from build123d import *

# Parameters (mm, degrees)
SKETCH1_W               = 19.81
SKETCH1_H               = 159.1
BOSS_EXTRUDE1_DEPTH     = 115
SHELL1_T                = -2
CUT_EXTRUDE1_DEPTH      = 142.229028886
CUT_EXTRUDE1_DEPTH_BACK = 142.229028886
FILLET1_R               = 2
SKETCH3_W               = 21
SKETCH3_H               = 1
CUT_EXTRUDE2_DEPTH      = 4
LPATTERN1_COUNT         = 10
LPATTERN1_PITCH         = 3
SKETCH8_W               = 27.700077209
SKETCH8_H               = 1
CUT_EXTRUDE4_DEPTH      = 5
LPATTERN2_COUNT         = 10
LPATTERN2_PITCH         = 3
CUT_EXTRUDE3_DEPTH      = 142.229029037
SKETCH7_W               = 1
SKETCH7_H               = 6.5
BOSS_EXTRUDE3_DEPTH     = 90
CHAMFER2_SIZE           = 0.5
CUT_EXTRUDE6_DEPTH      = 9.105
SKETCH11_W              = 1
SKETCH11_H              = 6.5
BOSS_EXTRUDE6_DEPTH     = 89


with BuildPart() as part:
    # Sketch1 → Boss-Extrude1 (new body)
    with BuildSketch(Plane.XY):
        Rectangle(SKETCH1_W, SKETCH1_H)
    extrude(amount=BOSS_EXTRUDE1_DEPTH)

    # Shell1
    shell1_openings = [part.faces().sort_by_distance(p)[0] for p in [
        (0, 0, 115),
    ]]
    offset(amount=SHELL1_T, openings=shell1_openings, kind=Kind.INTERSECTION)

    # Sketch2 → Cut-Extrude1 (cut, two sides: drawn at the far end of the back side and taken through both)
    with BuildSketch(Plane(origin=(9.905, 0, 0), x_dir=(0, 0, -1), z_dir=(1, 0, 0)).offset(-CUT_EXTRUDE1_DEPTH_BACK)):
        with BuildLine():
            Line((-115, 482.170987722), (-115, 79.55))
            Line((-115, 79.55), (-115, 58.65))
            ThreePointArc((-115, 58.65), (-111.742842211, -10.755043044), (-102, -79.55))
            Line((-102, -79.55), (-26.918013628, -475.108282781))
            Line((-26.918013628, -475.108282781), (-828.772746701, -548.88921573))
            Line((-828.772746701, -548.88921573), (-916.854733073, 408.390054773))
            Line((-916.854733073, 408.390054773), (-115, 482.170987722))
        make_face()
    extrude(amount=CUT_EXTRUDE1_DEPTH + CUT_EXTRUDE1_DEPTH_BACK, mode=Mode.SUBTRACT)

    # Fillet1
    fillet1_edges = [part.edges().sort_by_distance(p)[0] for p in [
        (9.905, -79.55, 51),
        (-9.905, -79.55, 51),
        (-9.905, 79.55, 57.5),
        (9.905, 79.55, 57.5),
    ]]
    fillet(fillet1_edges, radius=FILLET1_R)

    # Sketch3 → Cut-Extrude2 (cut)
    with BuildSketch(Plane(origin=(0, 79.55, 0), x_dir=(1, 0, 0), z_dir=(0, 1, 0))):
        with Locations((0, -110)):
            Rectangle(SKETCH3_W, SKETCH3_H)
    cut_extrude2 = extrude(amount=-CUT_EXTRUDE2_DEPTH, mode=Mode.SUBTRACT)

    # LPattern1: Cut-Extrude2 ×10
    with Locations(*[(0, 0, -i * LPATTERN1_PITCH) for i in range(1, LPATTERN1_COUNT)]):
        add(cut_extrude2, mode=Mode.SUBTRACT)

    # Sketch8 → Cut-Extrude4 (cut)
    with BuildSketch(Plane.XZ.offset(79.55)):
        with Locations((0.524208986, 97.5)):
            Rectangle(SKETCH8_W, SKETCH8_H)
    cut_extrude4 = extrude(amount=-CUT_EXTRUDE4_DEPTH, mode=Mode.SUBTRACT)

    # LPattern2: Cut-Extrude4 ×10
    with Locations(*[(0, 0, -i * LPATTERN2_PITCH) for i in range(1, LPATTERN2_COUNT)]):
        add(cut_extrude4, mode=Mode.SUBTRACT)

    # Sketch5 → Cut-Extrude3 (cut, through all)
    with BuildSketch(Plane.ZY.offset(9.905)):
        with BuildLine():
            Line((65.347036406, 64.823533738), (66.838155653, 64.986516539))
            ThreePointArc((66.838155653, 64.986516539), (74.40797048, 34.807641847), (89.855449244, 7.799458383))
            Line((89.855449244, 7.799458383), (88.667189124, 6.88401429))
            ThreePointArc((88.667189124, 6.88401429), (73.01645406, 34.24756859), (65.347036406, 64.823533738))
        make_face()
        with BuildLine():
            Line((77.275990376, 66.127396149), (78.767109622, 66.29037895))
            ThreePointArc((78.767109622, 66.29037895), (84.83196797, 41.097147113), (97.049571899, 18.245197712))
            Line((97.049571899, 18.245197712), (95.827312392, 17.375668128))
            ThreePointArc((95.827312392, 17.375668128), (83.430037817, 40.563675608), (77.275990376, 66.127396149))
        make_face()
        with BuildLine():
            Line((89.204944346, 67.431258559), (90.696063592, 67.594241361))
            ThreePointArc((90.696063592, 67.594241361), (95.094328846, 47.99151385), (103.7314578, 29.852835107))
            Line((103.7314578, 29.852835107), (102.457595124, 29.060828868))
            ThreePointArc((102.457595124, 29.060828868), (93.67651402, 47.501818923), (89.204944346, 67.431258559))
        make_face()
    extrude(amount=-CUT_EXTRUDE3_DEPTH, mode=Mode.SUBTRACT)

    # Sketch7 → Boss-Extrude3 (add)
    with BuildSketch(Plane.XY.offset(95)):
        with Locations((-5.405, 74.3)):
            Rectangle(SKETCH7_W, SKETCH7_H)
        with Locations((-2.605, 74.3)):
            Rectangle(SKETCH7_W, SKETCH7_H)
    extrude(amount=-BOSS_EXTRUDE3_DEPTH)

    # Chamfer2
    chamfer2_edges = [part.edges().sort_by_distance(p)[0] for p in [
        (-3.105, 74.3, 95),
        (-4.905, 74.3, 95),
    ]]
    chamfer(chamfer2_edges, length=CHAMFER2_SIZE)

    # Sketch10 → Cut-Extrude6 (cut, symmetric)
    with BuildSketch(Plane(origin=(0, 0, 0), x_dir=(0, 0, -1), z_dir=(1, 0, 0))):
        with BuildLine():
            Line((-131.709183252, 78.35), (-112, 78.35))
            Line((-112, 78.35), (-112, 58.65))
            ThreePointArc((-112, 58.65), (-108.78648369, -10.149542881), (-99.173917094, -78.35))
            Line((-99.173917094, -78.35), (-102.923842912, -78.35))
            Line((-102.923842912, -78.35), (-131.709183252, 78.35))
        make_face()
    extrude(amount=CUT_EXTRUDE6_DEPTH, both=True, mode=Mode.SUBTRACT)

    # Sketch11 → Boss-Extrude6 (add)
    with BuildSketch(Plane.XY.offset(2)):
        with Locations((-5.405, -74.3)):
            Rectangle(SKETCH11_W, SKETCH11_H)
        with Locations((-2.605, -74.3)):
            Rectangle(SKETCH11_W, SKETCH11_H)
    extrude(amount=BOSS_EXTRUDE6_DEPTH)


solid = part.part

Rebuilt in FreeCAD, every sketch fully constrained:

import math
import FreeCAD as App
import Part
import Sketcher
from FreeCAD import Vector


def edges_at(feature, points):
    """Names of the edges that pass closest to the given points."""
    edges = feature.Shape.Edges
    near = lambda p: min(range(len(edges)), key=lambda i: edges[i].distToShape(Part.Vertex(*p))[0])
    return sorted({f"Edge{near(p) + 1}" for p in points})


def faces_at(feature, points):
    """Names of the faces that lie closest to the given points."""
    faces = feature.Shape.Faces
    near = lambda p: min(range(len(faces)), key=lambda i: faces[i].distToShape(Part.Vertex(*p))[0])
    return sorted({f"Face{near(p) + 1}" for p in points})

doc = App.newDocument("Part")
body = doc.addObject("PartDesign::Body", "Body")

sketch1 = body.newObject("Sketcher::SketchObject", "Sketch")
sketch1.AttachmentSupport = (doc.getObject("XY_Plane"), [""])
sketch1.MapMode = "FlatFace"
sketch1.addGeometry([
    Part.LineSegment(Vector(-9.905, 79.55, 0), Vector(-9.905, -79.55, 0)),
    Part.LineSegment(Vector(-9.905, -79.55, 0), Vector(9.905, -79.55, 0)),
    Part.LineSegment(Vector(9.905, -79.55, 0), Vector(9.905, 79.55, 0)),
    Part.LineSegment(Vector(9.905, 79.55, 0), Vector(-9.905, 79.55, 0)),
], False)
sketch1.addConstraint([
    Sketcher.Constraint("Coincident", 0, 2, 1, 1),
    Sketcher.Constraint("Coincident", 1, 2, 2, 1),
    Sketcher.Constraint("Coincident", 2, 2, 3, 1),
    Sketcher.Constraint("Coincident", 3, 2, 0, 1),
    Sketcher.Constraint("Vertical", 0),
    Sketcher.Constraint("Horizontal", 1),
    Sketcher.Constraint("Vertical", 2),
    Sketcher.Constraint("Horizontal", 3),
    Sketcher.Constraint("Symmetric", 0, 2, 2, 2, -1, 1),
    Sketcher.Constraint("DistanceY", 0, 2, 0, 1, 159.1),
    Sketcher.Constraint("DistanceX", 1, 1, 1, 2, 19.81),
])
pad1 = body.newObject("PartDesign::Pad", "Pad")
pad1.Profile = sketch1
pad1.Length = 115
doc.recompute()

thickness = body.newObject("PartDesign::Thickness", "Thickness")
thickness.Base = (pad1, faces_at(pad1, [(0, 0, 115)]))
thickness.Value = 2
thickness.Reversed = True
thickness.Join = "Intersection"

sketch2 = body.newObject("Sketcher::SketchObject", "Sketch001")
sketch2.AttachmentSupport = (doc.getObject("YZ_Plane"), [""])
sketch2.MapMode = "FlatFace"
sketch2.AttachmentOffset = App.Placement(Vector(0, 0, 9.905), App.Rotation())
sketch2.addGeometry([
    Part.LineSegment(Vector(58.65, 115, 0), Vector(482.170988, 115, 0)),
    Part.LineSegment(Vector(482.170988, 115, 0), Vector(408.390055, 916.854733, 0)),
    Part.LineSegment(Vector(408.390055, 916.854733, 0), Vector(-548.889216, 828.772747, 0)),
    Part.LineSegment(Vector(-548.889216, 828.772747, 0), Vector(-475.108283, 26.918014, 0)),
    Part.LineSegment(Vector(-475.108283, 26.918014, 0), Vector(-79.55, 102, 0)),
    Part.ArcOfCircle(Part.Circle(Vector(58.65, -626.086154, 0), Vector(0, 0, 1), 741.086154), math.radians(90), math.radians(100.747609)),
], False)
sketch2.addConstraint([
    Sketcher.Constraint("Coincident", 0, 2, 1, 1),
    Sketcher.Constraint("Coincident", 1, 2, 2, 1),
    Sketcher.Constraint("Coincident", 2, 2, 3, 1),
    Sketcher.Constraint("Coincident", 3, 2, 4, 1),
    Sketcher.Constraint("Tangent", 4, 2, 5, 2),
    Sketcher.Constraint("Tangent", 5, 1, 0, 1),
    Sketcher.Constraint("Horizontal", 0),
    Sketcher.Constraint("Perpendicular", 1, 2),
    Sketcher.Constraint("Perpendicular", 2, 3),
    Sketcher.Constraint("Equal", 1, 3),
    Sketcher.Constraint("DistanceY", -1, 1, 0, 2, 115.0),
    Sketcher.Constraint("DistanceY", -1, 1, 4, 2, 102.0),
    Sketcher.Constraint("DistanceX", 4, 2, 5, 3, 138.2),
    Sketcher.Constraint("DistanceX", -1, 1, 5, 3, 58.65),
    Sketcher.Constraint("DistanceY", 5, 3, 2, 2, 1454.858901),
    Sketcher.Constraint("DistanceX", 0, 1, 0, 2, 423.520988),
    Sketcher.Constraint("DistanceX", 2, 2, 1, 2, 957.279271),
])
pocket1 = body.newObject("PartDesign::Pocket", "Pocket")
pocket1.Profile = sketch2
pocket1.Type = "ThroughAll"
pocket1.Midplane = True
doc.recompute()

fillet = body.newObject("PartDesign::Fillet", "Fillet")
fillet.Base = (pocket1, edges_at(pocket1, [
    (9.905, -79.55, 51),
    (-9.905, -79.55, 51),
    (-9.905, 79.55, 57.5),
    (9.905, 79.55, 57.5),
]))
fillet.Radius = 2

sketch3 = body.newObject("Sketcher::SketchObject", "Sketch002")
sketch3.AttachmentSupport = (doc.getObject("XZ_Plane"), [""])
sketch3.MapMode = "FlatFace"
sketch3.AttachmentOffset = App.Placement(Vector(0, 0, -79.55), App.Rotation())
sketch3.addGeometry([
    Part.LineSegment(Vector(-10.5, 109.5, 0), Vector(-10.5, 110.5, 0)),
    Part.LineSegment(Vector(-10.5, 110.5, 0), Vector(10.5, 110.5, 0)),
    Part.LineSegment(Vector(10.5, 110.5, 0), Vector(10.5, 109.5, 0)),
    Part.LineSegment(Vector(10.5, 109.5, 0), Vector(-10.5, 109.5, 0)),
], False)
sketch3.addConstraint([
    Sketcher.Constraint("Coincident", 0, 2, 1, 1),
    Sketcher.Constraint("Coincident", 1, 2, 2, 1),
    Sketcher.Constraint("Coincident", 2, 2, 3, 1),
    Sketcher.Constraint("Coincident", 3, 2, 0, 1),
    Sketcher.Constraint("Vertical", 0),
    Sketcher.Constraint("Horizontal", 1),
    Sketcher.Constraint("Vertical", 2),
    Sketcher.Constraint("Horizontal", 3),
    Sketcher.Constraint("DistanceX", 1, 1, 1, 2, 21.0),
    Sketcher.Constraint("DistanceY", 0, 1, 0, 2, 1.0),
    Sketcher.Constraint("DistanceX", 0, 2, -1, 1, 10.5),
    Sketcher.Constraint("DistanceY", -1, 1, 0, 2, 110.5),
])
pocket2 = body.newObject("PartDesign::Pocket", "Pocket001")
pocket2.Profile = sketch3
pocket2.Length = 4
pocket2.Reversed = True
doc.recompute()

linearpattern = body.newObject("PartDesign::LinearPattern", "LinearPattern")
linearpattern.Originals = [pocket2]
linearpattern.Direction = (doc.getObject("Z_Axis"), [""])
linearpattern.Mode = "offset"
linearpattern.Offset = 3
linearpattern.Occurrences = 10
linearpattern.Reversed = True
body.Tip = linearpattern

sketch4 = body.newObject("Sketcher::SketchObject", "Sketch003")
sketch4.AttachmentSupport = (doc.getObject("XZ_Plane"), [""])
sketch4.MapMode = "FlatFace"
sketch4.AttachmentOffset = App.Placement(Vector(0, 0, 79.55), App.Rotation())
sketch4.addGeometry([
    Part.LineSegment(Vector(-13.32583, 98, 0), Vector(-13.32583, 97, 0)),
    Part.LineSegment(Vector(-13.32583, 97, 0), Vector(14.374248, 97, 0)),
    Part.LineSegment(Vector(14.374248, 97, 0), Vector(14.374248, 98, 0)),
    Part.LineSegment(Vector(14.374248, 98, 0), Vector(-13.32583, 98, 0)),
], False)
sketch4.addConstraint([
    Sketcher.Constraint("Coincident", 0, 2, 1, 1),
    Sketcher.Constraint("Coincident", 1, 2, 2, 1),
    Sketcher.Constraint("Coincident", 2, 2, 3, 1),
    Sketcher.Constraint("Coincident", 3, 2, 0, 1),
    Sketcher.Constraint("Vertical", 0),
    Sketcher.Constraint("Horizontal", 1),
    Sketcher.Constraint("Vertical", 2),
    Sketcher.Constraint("Horizontal", 3),
    Sketcher.Constraint("DistanceY", 0, 2, 0, 1, 1.0),
    Sketcher.Constraint("DistanceY", -1, 1, 0, 2, 97.0),
    Sketcher.Constraint("DistanceX", 1, 1, 1, 2, 27.700077),
    Sketcher.Constraint("DistanceX", 0, 2, -1, 1, 13.32583),
])
pocket3 = body.newObject("PartDesign::Pocket", "Pocket002")
pocket3.Profile = sketch4
pocket3.Length = 5
doc.recompute()

linearpattern2 = body.newObject("PartDesign::LinearPattern", "LinearPattern001")
linearpattern2.Originals = [pocket3]
linearpattern2.Direction = (doc.getObject("Z_Axis"), [""])
linearpattern2.Mode = "offset"
linearpattern2.Offset = 3
linearpattern2.Occurrences = 10
linearpattern2.Reversed = True
body.Tip = linearpattern2

sketch5 = body.newObject("Sketcher::SketchObject", "Sketch004")
sketch5.AttachmentSupport = (doc.getObject("YZ_Plane"), [""])
sketch5.MapMode = "FlatFace"
sketch5.AttachmentOffset = App.Placement(Vector(0, 0, -9.905), App.Rotation())
sketch5.addGeometry([
    Part.LineSegment(Vector(64.986517, 66.838156, 0), Vector(64.823534, 65.347036, 0)),
    Part.ArcOfCircle(Part.Circle(Vector(77.373209, 180.163218, 0), Vector(0, 0, 1), 115.5), math.radians(-127.610913), math.radians(-96.2378)),
    Part.LineSegment(Vector(6.884014, 88.667189, 0), Vector(7.799458, 89.855449, 0)),
    Part.ArcOfCircle(Part.Circle(Vector(77.373209, 180.163218, 0), Vector(0, 0, 1), 114), math.radians(-127.610913), math.radians(-96.2378)),
    Part.LineSegment(Vector(66.290379, 78.76711, 0), Vector(66.127396, 77.27599, 0)),
    Part.ArcOfCircle(Part.Circle(Vector(77.373209, 180.163218, 0), Vector(0, 0, 1), 103.5), math.radians(-125.428488), math.radians(-96.2378)),
    Part.LineSegment(Vector(17.375668, 95.827312, 0), Vector(18.245198, 97.049572, 0)),
    Part.ArcOfCircle(Part.Circle(Vector(77.373209, 180.163218, 0), Vector(0, 0, 1), 102), math.radians(-125.428488), math.radians(-96.2378)),
    Part.LineSegment(Vector(67.594241, 90.696064, 0), Vector(67.431259, 89.204944, 0)),
    Part.ArcOfCircle(Part.Circle(Vector(77.373209, 180.163218, 0), Vector(0, 0, 1), 91.5), math.radians(-121.870703), math.radians(-96.2378)),
    Part.LineSegment(Vector(29.060829, 102.457595, 0), Vector(29.852835, 103.731458, 0)),
    Part.ArcOfCircle(Part.Circle(Vector(77.373209, 180.163218, 0), Vector(0, 0, 1), 90), math.radians(-121.870703), math.radians(-96.2378)),
], False)
sketch5.addConstraint([
    Sketcher.Constraint("Coincident", 0, 2, 1, 2),
    Sketcher.Constraint("Coincident", 1, 1, 2, 1),
    Sketcher.Constraint("Coincident", 2, 2, 3, 1),
    Sketcher.Constraint("Coincident", 3, 2, 0, 1),
    Sketcher.Constraint("Coincident", 4, 2, 5, 2),
    Sketcher.Constraint("Coincident", 5, 1, 6, 1),
    Sketcher.Constraint("Coincident", 6, 2, 7, 1),
    Sketcher.Constraint("Coincident", 7, 2, 4, 1),
    Sketcher.Constraint("Coincident", 8, 2, 9, 2),
    Sketcher.Constraint("Coincident", 9, 1, 10, 1),
    Sketcher.Constraint("Coincident", 10, 2, 11, 1),
    Sketcher.Constraint("Coincident", 11, 2, 8, 1),
    Sketcher.Constraint("Coincident", 3, 3, 1, 3),
    Sketcher.Constraint("Coincident", 5, 3, 1, 3),
    Sketcher.Constraint("Coincident", 7, 3, 1, 3),
    Sketcher.Constraint("Coincident", 9, 3, 1, 3),
    Sketcher.Constraint("Coincident", 11, 3, 1, 3),
    Sketcher.Constraint("Parallel", 0, 4),
    Sketcher.Constraint("Parallel", 4, 8),
    Sketcher.Constraint("Equal", 2, 4),
    Sketcher.Constraint("Equal", 6, 8),
    Sketcher.Constraint("Radius", 3, 114.0),
    Sketcher.Constraint("Radius", 7, 102.0),
    Sketcher.Constraint("Radius", 11, 90.0),
    Sketcher.Constraint("Radius", 1, 115.5),
    Sketcher.Constraint("DistanceY", 4, 2, 1, 1, 11.391199),
    Sketcher.Constraint("DistanceX", 6, 2, 4, 2, 47.882198),
    Sketcher.Constraint("DistanceX", -1, 1, 1, 3, 77.373209),
    Sketcher.Constraint("DistanceY", -1, 1, 1, 3, 180.163218),
    Sketcher.Constraint("DistanceX", -1, 1, 2, 2, 7.799458),
    Sketcher.Constraint("DistanceY", -1, 1, 4, 2, 77.27599),
    Sketcher.Constraint("DistanceX", -1, 1, 5, 1, 17.375668),
    Sketcher.Constraint("DistanceX", -1, 1, 7, 2, 66.290379),
    Sketcher.Constraint("DistanceX", -1, 1, 8, 2, 67.431259),
    Sketcher.Constraint("DistanceX", -1, 1, 9, 1, 29.060829),
    Sketcher.Constraint("DistanceY", 0, 2, 9, 3, 114.816182),
    Sketcher.Constraint("DistanceY", 2, 2, 10, 2, 13.876009),
])
pocket4 = body.newObject("PartDesign::Pocket", "Pocket003")
pocket4.Profile = sketch5
pocket4.Type = "ThroughAll"
pocket4.Reversed = True

sketch6 = body.newObject("Sketcher::SketchObject", "Sketch005")
sketch6.AttachmentSupport = (doc.getObject("XY_Plane"), [""])
sketch6.MapMode = "FlatFace"
sketch6.AttachmentOffset = App.Placement(Vector(0, 0, 95), App.Rotation())
sketch6.addGeometry([
    Part.LineSegment(Vector(-5.905, 77.55, 0), Vector(-5.905, 71.05, 0)),
    Part.LineSegment(Vector(-5.905, 71.05, 0), Vector(-4.905, 71.05, 0)),
    Part.LineSegment(Vector(-4.905, 71.05, 0), Vector(-4.905, 77.55, 0)),
    Part.LineSegment(Vector(-4.905, 77.55, 0), Vector(-5.905, 77.55, 0)),
    Part.LineSegment(Vector(-3.105, 77.55, 0), Vector(-3.105, 71.05, 0)),
    Part.LineSegment(Vector(-3.105, 71.05, 0), Vector(-2.105, 71.05, 0)),
    Part.LineSegment(Vector(-2.105, 71.05, 0), Vector(-2.105, 77.55, 0)),
    Part.LineSegment(Vector(-2.105, 77.55, 0), Vector(-3.105, 77.55, 0)),
], False)
sketch6.addConstraint([
    Sketcher.Constraint("Coincident", 0, 2, 1, 1),
    Sketcher.Constraint("Coincident", 1, 2, 2, 1),
    Sketcher.Constraint("Coincident", 2, 2, 3, 1),
    Sketcher.Constraint("Coincident", 3, 2, 0, 1),
    Sketcher.Constraint("Coincident", 4, 2, 5, 1),
    Sketcher.Constraint("Coincident", 5, 2, 6, 1),
    Sketcher.Constraint("Coincident", 6, 2, 7, 1),
    Sketcher.Constraint("Coincident", 7, 2, 4, 1),
    Sketcher.Constraint("Vertical", 0),
    Sketcher.Constraint("Horizontal", 1),
    Sketcher.Constraint("Vertical", 2),
    Sketcher.Constraint("Horizontal", 3),
    Sketcher.Constraint("Vertical", 4),
    Sketcher.Constraint("Horizontal", 5),
    Sketcher.Constraint("Vertical", 6),
    Sketcher.Constraint("Horizontal", 7),
    Sketcher.Constraint("Horizontal", 1, 2, 4, 2),
    Sketcher.Constraint("Horizontal", 3, 2, 6, 2),
    Sketcher.Constraint("Equal", 3, 5),
    Sketcher.Constraint("DistanceX", 1, 1, 1, 2, 1.0),
    Sketcher.Constraint("DistanceY", 0, 2, 0, 1, 6.5),
    Sketcher.Constraint("DistanceX", 1, 2, 4, 2, 1.8),
    Sketcher.Constraint("DistanceY", -1, 1, 0, 2, 71.05),
    Sketcher.Constraint("DistanceX", 0, 2, -1, 1, 5.905),
])
pad2 = body.newObject("PartDesign::Pad", "Pad001")
pad2.Profile = sketch6
pad2.Length = 90
pad2.Reversed = True
doc.recompute()

chamfer = body.newObject("PartDesign::Chamfer", "Chamfer")
chamfer.Base = (pad2, edges_at(pad2, [(-3.105, 74.3, 95), (-4.905, 74.3, 95)]))
chamfer.Size = 0.5

sketch7 = body.newObject("Sketcher::SketchObject", "Sketch006")
sketch7.AttachmentSupport = (doc.getObject("YZ_Plane"), [""])
sketch7.MapMode = "FlatFace"
sketch7.addGeometry([
    Part.LineSegment(Vector(78.35, 112, 0), Vector(78.35, 131.709183, 0)),
    Part.LineSegment(Vector(78.35, 131.709183, 0), Vector(-78.35, 102.923843, 0)),
    Part.LineSegment(Vector(-78.35, 102.923843, 0), Vector(-78.35, 99.173917, 0)),
    Part.ArcOfCircle(Part.Circle(Vector(58.65, -626.086154, 0), Vector(0, 0, 1), 738.086154), math.radians(90), math.radians(100.697001)),
    Part.LineSegment(Vector(58.65, 112, 0), Vector(78.35, 112, 0)),
], False)
sketch7.addConstraint([
    Sketcher.Constraint("Coincident", 0, 2, 1, 1),
    Sketcher.Constraint("Coincident", 1, 2, 2, 1),
    Sketcher.Constraint("Coincident", 2, 2, 3, 2),
    Sketcher.Constraint("Tangent", 3, 1, 4, 1),
    Sketcher.Constraint("Coincident", 4, 2, 0, 1),
    Sketcher.Constraint("Vertical", 0),
    Sketcher.Constraint("Vertical", 2),
    Sketcher.Constraint("Horizontal", 4),
    Sketcher.Constraint("DistanceX", 4, 1, 4, 2, 19.7),
    Sketcher.Constraint("DistanceY", -1, 1, 3, 1, 112.0),
    Sketcher.Constraint("DistanceX", 1, 2, 3, 3, 137.0),
    Sketcher.Constraint("DistanceX", -1, 1, 3, 3, 58.65),
    Sketcher.Constraint("Radius", 3, 738.086154),
    Sketcher.Constraint("DistanceY", 0, 1, 0, 2, 19.709183),
    Sketcher.Constraint("DistanceY", 2, 2, 2, 1, 3.749926),
])
pocket5 = body.newObject("PartDesign::Pocket", "Pocket004")
pocket5.Profile = sketch7
pocket5.Length = 18.21
pocket5.Midplane = True

sketch8 = body.newObject("Sketcher::SketchObject", "Sketch007")
sketch8.AttachmentSupport = (doc.getObject("XY_Plane"), [""])
sketch8.MapMode = "FlatFace"
sketch8.AttachmentOffset = App.Placement(Vector(0, 0, 2), App.Rotation())
sketch8.addGeometry([
    Part.LineSegment(Vector(-5.905, -71.05, 0), Vector(-5.905, -77.55, 0)),
    Part.LineSegment(Vector(-5.905, -77.55, 0), Vector(-4.905, -77.55, 0)),
    Part.LineSegment(Vector(-4.905, -77.55, 0), Vector(-4.905, -71.05, 0)),
    Part.LineSegment(Vector(-4.905, -71.05, 0), Vector(-5.905, -71.05, 0)),
    Part.LineSegment(Vector(-3.105, -71.05, 0), Vector(-3.105, -77.55, 0)),
    Part.LineSegment(Vector(-3.105, -77.55, 0), Vector(-2.105, -77.55, 0)),
    Part.LineSegment(Vector(-2.105, -77.55, 0), Vector(-2.105, -71.05, 0)),
    Part.LineSegment(Vector(-2.105, -71.05, 0), Vector(-3.105, -71.05, 0)),
], False)
sketch8.addConstraint([
    Sketcher.Constraint("Coincident", 0, 2, 1, 1),
    Sketcher.Constraint("Coincident", 1, 2, 2, 1),
    Sketcher.Constraint("Coincident", 2, 2, 3, 1),
    Sketcher.Constraint("Coincident", 3, 2, 0, 1),
    Sketcher.Constraint("Coincident", 4, 2, 5, 1),
    Sketcher.Constraint("Coincident", 5, 2, 6, 1),
    Sketcher.Constraint("Coincident", 6, 2, 7, 1),
    Sketcher.Constraint("Coincident", 7, 2, 4, 1),
    Sketcher.Constraint("Vertical", 0),
    Sketcher.Constraint("Horizontal", 1),
    Sketcher.Constraint("Vertical", 2),
    Sketcher.Constraint("Horizontal", 3),
    Sketcher.Constraint("Vertical", 4),
    Sketcher.Constraint("Horizontal", 5),
    Sketcher.Constraint("Vertical", 6),
    Sketcher.Constraint("Horizontal", 7),
    Sketcher.Constraint("Horizontal", 1, 2, 4, 2),
    Sketcher.Constraint("Horizontal", 3, 2, 6, 2),
    Sketcher.Constraint("Equal", 3, 5),
    Sketcher.Constraint("DistanceX", 1, 1, 1, 2, 1.0),
    Sketcher.Constraint("DistanceY", 0, 2, 0, 1, 6.5),
    Sketcher.Constraint("DistanceX", 1, 2, 4, 2, 1.8),
    Sketcher.Constraint("DistanceY", 0, 2, -1, 1, 77.55),
    Sketcher.Constraint("DistanceX", 0, 2, -1, 1, 5.905),
])
pad3 = body.newObject("PartDesign::Pad", "Pad002")
pad3.Profile = sketch8
pad3.Length = 89

doc.recompute()
